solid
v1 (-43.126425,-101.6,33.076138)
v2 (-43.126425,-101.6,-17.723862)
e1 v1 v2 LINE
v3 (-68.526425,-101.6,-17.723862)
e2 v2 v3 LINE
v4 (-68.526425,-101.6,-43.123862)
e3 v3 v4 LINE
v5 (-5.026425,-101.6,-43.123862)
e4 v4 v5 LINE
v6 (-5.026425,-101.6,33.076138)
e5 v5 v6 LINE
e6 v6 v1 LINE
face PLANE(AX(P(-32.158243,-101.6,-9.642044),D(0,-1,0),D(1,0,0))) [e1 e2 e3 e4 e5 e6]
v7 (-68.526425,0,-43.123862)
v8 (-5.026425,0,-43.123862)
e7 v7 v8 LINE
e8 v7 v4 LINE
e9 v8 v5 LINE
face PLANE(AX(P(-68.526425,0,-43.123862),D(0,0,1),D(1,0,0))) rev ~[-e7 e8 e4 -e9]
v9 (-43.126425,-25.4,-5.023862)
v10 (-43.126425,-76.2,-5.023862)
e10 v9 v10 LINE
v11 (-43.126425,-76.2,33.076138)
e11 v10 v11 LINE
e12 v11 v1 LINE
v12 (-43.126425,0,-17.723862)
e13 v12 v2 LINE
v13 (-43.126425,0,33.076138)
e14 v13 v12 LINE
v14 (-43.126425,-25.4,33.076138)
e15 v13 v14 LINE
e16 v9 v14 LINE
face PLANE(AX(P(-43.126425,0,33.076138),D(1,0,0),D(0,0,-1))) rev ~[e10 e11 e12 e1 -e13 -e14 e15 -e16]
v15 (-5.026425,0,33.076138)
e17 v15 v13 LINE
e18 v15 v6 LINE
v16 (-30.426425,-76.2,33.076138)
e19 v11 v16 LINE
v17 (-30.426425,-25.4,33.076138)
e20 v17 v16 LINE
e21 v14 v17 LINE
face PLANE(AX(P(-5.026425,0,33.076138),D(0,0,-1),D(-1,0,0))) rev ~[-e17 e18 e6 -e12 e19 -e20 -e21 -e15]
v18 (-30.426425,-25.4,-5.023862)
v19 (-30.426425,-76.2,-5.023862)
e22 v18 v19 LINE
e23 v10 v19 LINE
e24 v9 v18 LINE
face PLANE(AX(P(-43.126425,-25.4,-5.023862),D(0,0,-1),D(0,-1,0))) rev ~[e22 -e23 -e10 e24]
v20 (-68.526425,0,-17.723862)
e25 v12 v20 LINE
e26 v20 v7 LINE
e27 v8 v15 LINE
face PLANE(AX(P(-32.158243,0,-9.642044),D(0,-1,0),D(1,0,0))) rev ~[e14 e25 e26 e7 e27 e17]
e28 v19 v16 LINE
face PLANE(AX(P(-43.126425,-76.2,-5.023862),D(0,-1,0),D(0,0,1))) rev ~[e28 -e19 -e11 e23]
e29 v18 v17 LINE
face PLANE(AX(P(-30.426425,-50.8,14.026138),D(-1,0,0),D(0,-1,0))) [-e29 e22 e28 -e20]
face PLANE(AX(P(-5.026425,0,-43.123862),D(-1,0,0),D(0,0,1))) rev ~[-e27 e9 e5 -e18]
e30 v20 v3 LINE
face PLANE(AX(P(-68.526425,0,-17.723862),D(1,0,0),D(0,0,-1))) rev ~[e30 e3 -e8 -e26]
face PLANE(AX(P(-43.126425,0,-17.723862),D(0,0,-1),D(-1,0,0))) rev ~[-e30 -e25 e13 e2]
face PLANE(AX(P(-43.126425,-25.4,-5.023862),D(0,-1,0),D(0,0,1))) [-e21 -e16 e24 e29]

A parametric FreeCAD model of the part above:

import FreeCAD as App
import Part
import Sketcher
Q = App.Units.Quantity

doc = App.newDocument("Part")
body = doc.addObject("PartDesign::Body", "Body")

sketch1 = body.newObject("Sketcher::SketchObject", "Sketch")
sketch1.AttachmentSupport = (doc.getObject("XZ_Plane"), [""])
sketch1.MapMode = "FlatFace"
sketch1.addGeometry([
    Part.LineSegment(App.Vector(-68.526425, -17.723862, 0), App.Vector(-68.526425, -43.123862, 0)),
    Part.LineSegment(App.Vector(-68.526425, -43.123862, 0), App.Vector(-5.026425, -43.123862, 0)),
    Part.LineSegment(App.Vector(-5.026425, -43.123862, 0), App.Vector(-5.026425, 33.076138, 0)),
    Part.LineSegment(App.Vector(-5.026425, 33.076138, 0), App.Vector(-43.126425, 33.076138, 0)),
    Part.LineSegment(App.Vector(-43.126425, 33.076138, 0), App.Vector(-43.126425, -17.723862, 0)),
    Part.LineSegment(App.Vector(-43.126425, -17.723862, 0), App.Vector(-68.526425, -17.723862, 0)),
], False)
sketch1.addConstraint([
    Sketcher.Constraint("Coincident", 0, 2, 1, 1),
    Sketcher.Constraint("Coincident", 1, 2, 2, 1),
    Sketcher.Constraint("Coincident", 2, 2, 3, 1),
    Sketcher.Constraint("Coincident", 3, 2, 4, 1),
    Sketcher.Constraint("Coincident", 4, 2, 5, 1),
    Sketcher.Constraint("Coincident", 5, 2, 0, 1),
    Sketcher.Constraint("Vertical", 0),
    Sketcher.Constraint("Horizontal", 1),
    Sketcher.Constraint("Vertical", 2),
    Sketcher.Constraint("Horizontal", 3),
    Sketcher.Constraint("Vertical", 4),
    Sketcher.Constraint("Horizontal", 5),
    Sketcher.Constraint("Equal", 5, 0),
    Sketcher.Constraint("DistanceX", 5, 2, 5, 1, Q("1 in")),
    Sketcher.Constraint("DistanceY", 2, 1, 2, 2, Q("3 in")),
    Sketcher.Constraint("DistanceX", 1, 1, 1, 2, Q("2.5 in")),
    Sketcher.Constraint("DistanceX", 0, 2, -1, 1, 68.526425),
    Sketcher.Constraint("DistanceY", 0, 2, -1, 1, 43.123862),
])
pad1 = body.newObject("PartDesign::Pad", "Pad")
pad1.Profile = sketch1
pad1.Length = Q("4 in")

sketch2 = body.newObject("Sketcher::SketchObject", "Sketch001")
sketch2.AttachmentSupport = (doc.getObject("YZ_Plane"), [""])
sketch2.MapMode = "FlatFace"
sketch2.AttachmentOffset = App.Placement(App.Vector(0, 0, -43.126425), App.Rotation())
sketch2.addGeometry([
    Part.LineSegment(App.Vector(-25.4, 33.076138, 0), App.Vector(-25.4, -5.023862, 0)),
    Part.LineSegment(App.Vector(-25.4, -5.023862, 0), App.Vector(-76.2, -5.023862, 0)),
    Part.LineSegment(App.Vector(-76.2, -5.023862, 0), App.Vector(-76.2, 33.076138, 0)),
    Part.LineSegment(App.Vector(-76.2, 33.076138, 0), App.Vector(-25.4, 33.076138, 0)),
], False)
sketch2.addConstraint([
    Sketcher.Constraint("Coincident", 0, 2, 1, 1),
    Sketcher.Constraint("Coincident", 1, 2, 2, 1),
    Sketcher.Constraint("Coincident", 2, 2, 3, 1),
    Sketcher.Constraint("Coincident", 3, 2, 0, 1),
    Sketcher.Constraint("Vertical", 0),
    Sketcher.Constraint("Horizontal", 1),
    Sketcher.Constraint("Vertical", 2),
    Sketcher.Constraint("Horizontal", 3),
    Sketcher.Constraint("DistanceX", 1, 2, 1, 1, Q("2 in")),
    Sketcher.Constraint("DistanceY", 0, 2, 0, 1, Q("1.5 in")),
    Sketcher.Constraint("DistanceX", 0, 2, -1, 1, Q("1 in")),
    Sketcher.Constraint("DistanceY", 0, 2, -1, 1, 5.023862),
])
pocket1 = body.newObject("PartDesign::Pocket", "Pocket")
pocket1.Profile = sketch2
pocket1.Length = Q("0.5 in")
pocket1.Reversed = True

doc.recompute()
